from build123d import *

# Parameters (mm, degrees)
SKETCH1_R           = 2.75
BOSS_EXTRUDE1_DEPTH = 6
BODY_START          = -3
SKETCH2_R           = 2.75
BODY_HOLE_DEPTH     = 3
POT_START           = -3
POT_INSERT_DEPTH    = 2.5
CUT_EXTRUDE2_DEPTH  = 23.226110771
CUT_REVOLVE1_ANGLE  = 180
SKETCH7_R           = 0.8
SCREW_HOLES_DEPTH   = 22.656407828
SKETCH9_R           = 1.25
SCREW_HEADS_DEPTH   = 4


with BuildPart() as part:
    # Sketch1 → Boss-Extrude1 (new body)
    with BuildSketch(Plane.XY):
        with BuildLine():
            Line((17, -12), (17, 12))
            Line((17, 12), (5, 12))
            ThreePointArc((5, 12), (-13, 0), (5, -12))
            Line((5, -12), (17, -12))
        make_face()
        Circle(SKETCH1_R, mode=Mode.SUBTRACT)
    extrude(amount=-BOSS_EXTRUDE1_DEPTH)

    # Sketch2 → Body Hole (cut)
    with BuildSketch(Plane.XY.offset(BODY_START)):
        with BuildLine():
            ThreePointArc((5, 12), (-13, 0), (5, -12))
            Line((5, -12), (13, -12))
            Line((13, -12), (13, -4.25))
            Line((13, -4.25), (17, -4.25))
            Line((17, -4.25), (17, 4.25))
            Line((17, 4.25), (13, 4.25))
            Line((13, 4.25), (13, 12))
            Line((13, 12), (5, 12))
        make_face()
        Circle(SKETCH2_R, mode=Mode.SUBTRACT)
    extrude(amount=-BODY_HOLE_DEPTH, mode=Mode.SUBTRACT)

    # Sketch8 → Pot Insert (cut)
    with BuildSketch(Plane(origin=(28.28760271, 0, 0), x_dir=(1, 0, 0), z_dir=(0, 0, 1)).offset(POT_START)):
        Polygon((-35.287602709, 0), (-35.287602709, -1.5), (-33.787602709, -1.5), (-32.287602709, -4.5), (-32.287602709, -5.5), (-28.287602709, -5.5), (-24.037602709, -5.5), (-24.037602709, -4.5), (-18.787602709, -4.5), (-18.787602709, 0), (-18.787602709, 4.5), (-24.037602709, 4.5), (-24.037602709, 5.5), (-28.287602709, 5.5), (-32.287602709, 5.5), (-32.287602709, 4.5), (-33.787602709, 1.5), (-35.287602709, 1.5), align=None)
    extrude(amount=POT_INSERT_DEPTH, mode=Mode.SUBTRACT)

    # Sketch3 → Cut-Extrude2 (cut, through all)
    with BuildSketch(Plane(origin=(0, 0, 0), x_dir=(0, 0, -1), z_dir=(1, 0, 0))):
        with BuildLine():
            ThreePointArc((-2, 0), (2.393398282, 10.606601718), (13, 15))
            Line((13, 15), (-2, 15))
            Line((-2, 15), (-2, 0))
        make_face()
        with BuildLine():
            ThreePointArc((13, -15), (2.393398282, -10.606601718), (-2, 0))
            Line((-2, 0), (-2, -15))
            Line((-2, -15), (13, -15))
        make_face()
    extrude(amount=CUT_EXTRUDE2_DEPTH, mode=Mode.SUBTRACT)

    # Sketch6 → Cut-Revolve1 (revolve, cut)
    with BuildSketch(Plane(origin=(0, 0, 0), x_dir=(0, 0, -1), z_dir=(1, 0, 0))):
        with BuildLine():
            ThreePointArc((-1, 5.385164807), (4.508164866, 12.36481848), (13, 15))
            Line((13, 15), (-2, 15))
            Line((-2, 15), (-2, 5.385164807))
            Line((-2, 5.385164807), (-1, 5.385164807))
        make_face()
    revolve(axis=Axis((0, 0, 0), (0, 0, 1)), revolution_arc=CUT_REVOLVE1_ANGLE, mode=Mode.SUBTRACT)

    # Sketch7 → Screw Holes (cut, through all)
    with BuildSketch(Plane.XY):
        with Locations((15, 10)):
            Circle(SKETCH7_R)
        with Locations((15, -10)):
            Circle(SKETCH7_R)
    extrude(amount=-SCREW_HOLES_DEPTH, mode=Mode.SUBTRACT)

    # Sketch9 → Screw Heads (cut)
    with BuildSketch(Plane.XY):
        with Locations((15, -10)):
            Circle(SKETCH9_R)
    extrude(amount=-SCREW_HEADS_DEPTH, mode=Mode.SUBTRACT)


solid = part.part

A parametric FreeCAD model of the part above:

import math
import FreeCAD as App
import Part
import Sketcher
Q = App.Units.Quantity

doc = App.newDocument("Part")
params = doc.addObject("Spreadsheet::Sheet", "Params")
for row, (alias, value) in enumerate([
    ("sketch1_radius", "13 mm"),
    ("sketch1_diameter", "5.5 mm"),
    ("sketch1_width", "12 mm"),
    ("sketch1_height", "24 mm"),
    ("pad1_length", "6 mm"),
    ("sketch2_radius", "13 mm"),
    ("sketch2_diameter", "5.5 mm"),
    ("sketch2_width", "8 mm"),
    ("sketch2_width2", "4 mm"),
    ("sketch2_height", "8.5 mm"),
    ("pocket1_length", "3 mm"),
    ("sketch3_height", "1 mm"),
    ("sketch3_height2", "9 mm"),
    ("sketch3_height3", "3 mm"),
    ("sketch3_width", "1.5 mm"),
    ("sketch3_width2", "8.25 mm"),
    ("pocket2_length", "2.5 mm"),
    ("sketch4_radius", "15 mm"),
    ("sketch5_radius", "15 mm"),
    ("sketch5_height", "15 mm"),
    ("sketch5_height2", "1 mm"),
    ("groove_angle", "180 deg"),
    ("sketch6_diameter", "1.6 mm"),
    ("sketch7_diameter", "2.5 mm"),
    ("pocket5_length", "4 mm"),
], start=1):
    params.set(f"A{row}", alias)
    params.set(f"B{row}", "=" + value)
    params.setAlias(f"B{row}", alias)

body = doc.addObject("PartDesign::Body", "Body")

sketch1 = body.newObject("Sketcher::SketchObject", "Sketch")
sketch1.AttachmentSupport = (doc.getObject("XY_Plane"), [""])
sketch1.MapMode = "FlatFace"
sketch1.addGeometry([
    Part.LineSegment(App.Vector(17, -12, 0), App.Vector(17, 12, 0)),
    Part.LineSegment(App.Vector(17, 12, 0), App.Vector(5, 12, 0)),
    Part.ArcOfCircle(Part.Circle(App.Vector(0, 0, 0), App.Vector(0, 0, 1), 13), math.radians(67), math.radians(293)),
    Part.LineSegment(App.Vector(5, -12, 0), App.Vector(17, -12, 0)),
    Part.Circle(App.Vector(0, 0, 0), App.Vector(0, 0, 1), 2.8),
], False)
sketch1.addConstraint([
    Sketcher.Constraint("Coincident", 0, 2, 1, 1),
    Sketcher.Constraint("Coincident", 1, 2, 2, 1),
    Sketcher.Constraint("Coincident", 2, 2, 3, 1),
    Sketcher.Constraint("Coincident", 3, 2, 0, 1),
    Sketcher.Constraint("Vertical", 0),
    Sketcher.Constraint("Horizontal", 1),
    Sketcher.Constraint("Horizontal", 3),
    Sketcher.Constraint("Coincident", 2, 3, -1, 1),
    Sketcher.Constraint("Coincident", 4, 3, -1, 1),
    Sketcher.Constraint("Vertical", 1, 2, 2, 2),
    Sketcher.Constraint("Radius", 2, Q("13 mm")),
    Sketcher.Constraint("Diameter", 4, Q("5.5 mm")),
    Sketcher.Constraint("DistanceX", 1, 2, 1, 1, Q("12 mm")),
    Sketcher.Constraint("DistanceY", 0, 1, 0, 2, Q("24 mm")),
])
sketch1.setExpression("Constraints[10]", "Params.sketch1_radius")
sketch1.setExpression("Constraints[11]", "Params.sketch1_diameter")
sketch1.setExpression("Constraints[12]", "Params.sketch1_width")
sketch1.setExpression("Constraints[13]", "Params.sketch1_height")
pad1 = body.newObject("PartDesign::Pad", "Pad")
pad1.Profile = sketch1
pad1.setExpression("Length", "Params.pad1_length")
pad1.Reversed = True

sketch2 = body.newObject("Sketcher::SketchObject", "Sketch001")
sketch2.AttachmentSupport = (doc.getObject("XY_Plane"), [""])
sketch2.MapMode = "FlatFace"
sketch2.AttachmentOffset = App.Placement(App.Vector(0, 0, -3), App.Rotation())
sketch2.addGeometry([
    Part.ArcOfCircle(Part.Circle(App.Vector(0, 0, 0), App.Vector(0, 0, 1), 13), math.radians(67), math.radians(293)),
    Part.LineSegment(App.Vector(5, -12, 0), App.Vector(13, -12, 0)),
    Part.LineSegment(App.Vector(13, -12, 0), App.Vector(13, -4.2, 0)),
    Part.LineSegment(App.Vector(13, -4.2, 0), App.Vector(17, -4.2, 0)),
    Part.LineSegment(App.Vector(17, -4.2, 0), App.Vector(17, 4.2, 0)),
    Part.LineSegment(App.Vector(17, 4.2, 0), App.Vector(13, 4.2, 0)),
    Part.LineSegment(App.Vector(13, 4.2, 0), App.Vector(13, 12, 0)),
    Part.LineSegment(App.Vector(13, 12, 0), App.Vector(5, 12, 0)),
    Part.Circle(App.Vector(0, 0, 0), App.Vector(0, 0, 1), 2.8),
], False)
sketch2.addConstraint([
    Sketcher.Constraint("Coincident", 0, 2, 1, 1),
    Sketcher.Constraint("Coincident", 1, 2, 2, 1),
    Sketcher.Constraint("Coincident", 2, 2, 3, 1),
    Sketcher.Constraint("Coincident", 3, 2, 4, 1),
    Sketcher.Constraint("Coincident", 4, 2, 5, 1),
    Sketcher.Constraint("Coincident", 5, 2, 6, 1),
    Sketcher.Constraint("Coincident", 6, 2, 7, 1),
    Sketcher.Constraint("Coincident", 7, 2, 0, 1),
    Sketcher.Constraint("Horizontal", 1),
    Sketcher.Constraint("Vertical", 2),
    Sketcher.Constraint("Horizontal", 3),
    Sketcher.Constraint("Vertical", 4),
    Sketcher.Constraint("Horizontal", 5),
    Sketcher.Constraint("Vertical", 6),
    Sketcher.Constraint("Horizontal", 7),
    Sketcher.Constraint("Coincident", 0, 3, -1, 1),
    Sketcher.Constraint("Coincident", 8, 3, -1, 1),
    Sketcher.Constraint("Symmetric", 2, 2, 5, 2, -1),
    Sketcher.Constraint("Vertical", 0, 2, 7, 2),
    Sketcher.Constraint("Radius", 0, Q("13 mm")),
    Sketcher.Constraint("Diameter", 8, Q("5.5 mm")),
    Sketcher.Constraint("DistanceX", 1, 1, 1, 2, Q("8 mm")),
    Sketcher.Constraint("DistanceX", 3, 1, 3, 2, Q("4 mm")),
    Sketcher.Constraint("DistanceY", 4, 1, 4, 2, Q("8.5 mm")),
    Sketcher.Constraint("DistanceX", -1, 1, 0, 2, Q("5 mm")),
])
sketch2.setExpression("Constraints[19]", "Params.sketch2_radius")
sketch2.setExpression("Constraints[20]", "Params.sketch2_diameter")
sketch2.setExpression("Constraints[21]", "Params.sketch2_width")
sketch2.setExpression("Constraints[22]", "Params.sketch2_width2")
sketch2.setExpression("Constraints[23]", "Params.sketch2_height")
pocket1 = body.newObject("PartDesign::Pocket", "Pocket")
pocket1.Profile = sketch2
pocket1.setExpression("Length", "Params.pocket1_length")

sketch3 = body.newObject("Sketcher::SketchObject", "Sketch002")
sketch3.AttachmentSupport = (doc.getObject("XY_Plane"), [""])
sketch3.MapMode = "FlatFace"
sketch3.AttachmentOffset = App.Placement(App.Vector(0, 0, -3), App.Rotation())
sketch3.addGeometry([
    Part.LineSegment(App.Vector(-7, -1.5, 0), App.Vector(-5.5, -1.5, 0)),
    Part.LineSegment(App.Vector(-5.5, -1.5, 0), App.Vector(-4, -4.5, 0)),
    Part.LineSegment(App.Vector(-4, -4.5, 0), App.Vector(-4, -5.5, 0)),
    Part.LineSegment(App.Vector(-4, -5.5, 0), App.Vector(4.3, -5.5, 0)),
    Part.LineSegment(App.Vector(4.3, -5.5, 0), App.Vector(4.3, -4.5, 0)),
    Part.LineSegment(App.Vector(4.3, -4.5, 0), App.Vector(9.5, -4.5, 0)),
    Part.LineSegment(App.Vector(9.5, -4.5, 0), App.Vector(9.5, 4.5, 0)),
    Part.LineSegment(App.Vector(9.5, 4.5, 0), App.Vector(4.3, 4.5, 0)),
    Part.LineSegment(App.Vector(4.3, 4.5, 0), App.Vector(4.3, 5.5, 0)),
    Part.LineSegment(App.Vector(4.3, 5.5, 0), App.Vector(-4, 5.5, 0)),
    Part.LineSegment(App.Vector(-4, 5.5, 0), App.Vector(-4, 4.5, 0)),
    Part.LineSegment(App.Vector(-4, 4.5, 0), App.Vector(-5.5, 1.5, 0)),
    Part.LineSegment(App.Vector(-5.5, 1.5, 0), App.Vector(-7, 1.5, 0)),
    Part.LineSegment(App.Vector(-7, 1.5, 0), App.Vector(-7, -1.5, 0)),
], False)
sketch3.addConstraint([
    Sketcher.Constraint("Coincident", 0, 2, 1, 1),
    Sketcher.Constraint("Coincident", 1, 2, 2, 1),
    Sketcher.Constraint("Coincident", 2, 2, 3, 1),
    Sketcher.Constraint("Coincident", 3, 2, 4, 1),
    Sketcher.Constraint("Coincident", 4, 2, 5, 1),
    Sketcher.Constraint("Coincident", 5, 2, 6, 1),
    Sketcher.Constraint("Coincident", 6, 2, 7, 1),
    Sketcher.Constraint("Coincident", 7, 2, 8, 1),
    Sketcher.Constraint("Coincident", 8, 2, 9, 1),
    Sketcher.Constraint("Coincident", 9, 2, 10, 1),
    Sketcher.Constraint("Coincident", 10, 2, 11, 1),
    Sketcher.Constraint("Coincident", 11, 2, 12, 1),
    Sketcher.Constraint("Coincident", 12, 2, 13, 1),
    Sketcher.Constraint("Coincident", 13, 2, 0, 1),
    Sketcher.Constraint("Horizontal", 0),
    Sketcher.Constraint("Vertical", 2),
    Sketcher.Constraint("Horizontal", 3),
    Sketcher.Constraint("Vertical", 4),
    Sketcher.Constraint("Horizontal", 5),
    Sketcher.Constraint("Vertical", 6),
    Sketcher.Constraint("Horizontal", 7),
    Sketcher.Constraint("Vertical", 8),
    Sketcher.Constraint("Horizontal", 9),
    Sketcher.Constraint("Vertical", 10),
    Sketcher.Constraint("Horizontal", 12),
    Sketcher.Constraint("Vertical", 13),
    Sketcher.Constraint("Symmetric", 4, 2, 7, 2, -1),
    Sketcher.Constraint("Symmetric", 2, 2, 9, 2, -1),
    Sketcher.Constraint("Symmetric", 0, 2, 11, 2, -1),
    Sketcher.Constraint("Horizontal", 1, 2, 4, 2),
    Sketcher.Constraint("Horizontal", 7, 2, 10, 2),
    Sketcher.Constraint("DistanceY", 2, 2, 2, 1, Q("1 mm")),
    Sketcher.Constraint("DistanceY", 6, 1, 6, 2, Q("9 mm")),
    Sketcher.Constraint("DistanceY", 13, 2, 13, 1, Q("3 mm")),
    Sketcher.Constraint("DistanceX", 0, 1, 0, 2, Q("1.5 mm")),
    Sketcher.Constraint("DistanceX", 1, 2, -1, 1, Q("4 mm")),
    Sketcher.Constraint("DistanceX", 12, 2, -1, 1, Q("7 mm")),
    Sketcher.Constraint("DistanceX", 0, 2, 5, 2, Q("15 mm")),
    Sketcher.Constraint("DistanceX", 3, 1, 3, 2, Q("8.25 mm")),
])
sketch3.setExpression("Constraints[31]", "Params.sketch3_height")
sketch3.setExpression("Constraints[32]", "Params.sketch3_height2")
sketch3.setExpression("Constraints[33]", "Params.sketch3_height3")
sketch3.setExpression("Constraints[34]", "Params.sketch3_width")
sketch3.setExpression("Constraints[38]", "Params.sketch3_width2")
pocket2 = body.newObject("PartDesign::Pocket", "Pocket001")
pocket2.Profile = sketch3
pocket2.setExpression("Length", "Params.pocket2_length")
pocket2.Reversed = True

sketch4 = body.newObject("Sketcher::SketchObject", "Sketch003")
sketch4.AttachmentSupport = (doc.getObject("YZ_Plane"), [""])
sketch4.MapMode = "FlatFace"
sketch4.addGeometry([
    Part.ArcOfCircle(Part.Circle(App.Vector(0, -13, 0), App.Vector(0, 0, 1), 15), math.radians(0), math.radians(90)),
    Part.LineSegment(App.Vector(15, -13, 0), App.Vector(15, 2, 0)),
    Part.LineSegment(App.Vector(15, 2, 0), App.Vector(0, 2, 0)),
    Part.ArcOfCircle(Part.Circle(App.Vector(0, -13, 0), App.Vector(0, 0, 1), 15), math.radians(90), math.radians(180)),
    Part.LineSegment(App.Vector(0, 2, 0), App.Vector(-15, 2, 0)),
    Part.LineSegment(App.Vector(-15, 2, 0), App.Vector(-15, -13, 0)),
], False)
sketch4.addConstraint([
    Sketcher.Constraint("Tangent", 0, 1, 1, 1),
    Sketcher.Constraint("Coincident", 1, 2, 2, 1),
    Sketcher.Constraint("Tangent", 2, 2, 0, 2),
    Sketcher.Constraint("Tangent", 3, 1, 4, 1),
    Sketcher.Constraint("Coincident", 4, 2, 5, 1),
    Sketcher.Constraint("Tangent", 5, 2, 3, 2),
    Sketcher.Constraint("Vertical", 1),
    Sketcher.Constraint("Horizontal", 2),
    Sketcher.Constraint("Horizontal", 4),
    Sketcher.Constraint("Vertical", 5),
    Sketcher.Constraint("Coincident", 3, 3, 0, 3),
    Sketcher.Constraint("Equal", 0, 3),
    Sketcher.Constraint("PointOnObject", 0, 3, -2),
    Sketcher.Constraint("Radius", 0, Q("15 mm")),
    Sketcher.Constraint("DistanceY", 0, 3, -1, 1, Q("13 mm")),
])
sketch4.setExpression("Constraints[13]", "Params.sketch4_radius")
pocket3 = body.newObject("PartDesign::Pocket", "Pocket002")
pocket3.Profile = sketch4
pocket3.Type = "ThroughAll"
pocket3.Reversed = True

sketch5 = body.newObject("Sketcher::SketchObject", "Sketch004")
sketch5.AttachmentSupport = (doc.getObject("YZ_Plane"), [""])
sketch5.MapMode = "FlatFace"
sketch5.addGeometry([
    Part.ArcOfCircle(Part.Circle(App.Vector(0, -13, 0), App.Vector(0, 0, 1), 15), math.radians(0), math.radians(69)),
    Part.LineSegment(App.Vector(15, -13, 0), App.Vector(15, 2, 0)),
    Part.LineSegment(App.Vector(15, 2, 0), App.Vector(5.4, 2, 0)),
    Part.LineSegment(App.Vector(5.4, 2, 0), App.Vector(5.4, 1, 0)),
], False)
sketch5.addConstraint([
    Sketcher.Constraint("Tangent", 0, 1, 1, 1),
    Sketcher.Constraint("Coincident", 1, 2, 2, 1),
    Sketcher.Constraint("Coincident", 2, 2, 3, 1),
    Sketcher.Constraint("Coincident", 3, 2, 0, 2),
    Sketcher.Constraint("Vertical", 1),
    Sketcher.Constraint("Horizontal", 2),
    Sketcher.Constraint("Vertical", 3),
    Sketcher.Constraint("PointOnObject", 0, 3, -2),
    Sketcher.Constraint("Radius", 0, Q("15 mm")),
    Sketcher.Constraint("DistanceY", 1, 1, 1, 2, Q("15 mm")),
    Sketcher.Constraint("DistanceY", 3, 2, 3, 1, Q("1 mm")),
    Sketcher.Constraint("DistanceY", 0, 3, -1, 1, Q("13 mm")),
])
sketch5.setExpression("Constraints[8]", "Params.sketch5_radius")
sketch5.setExpression("Constraints[9]", "Params.sketch5_height")
sketch5.setExpression("Constraints[10]", "Params.sketch5_height2")
groove = body.newObject("PartDesign::Groove", "Groove")
groove.Profile = sketch5
groove.ReferenceAxis = (sketch5, ["V_Axis"])
groove.setExpression("Angle", "Params.groove_angle")

sketch6 = body.newObject("Sketcher::SketchObject", "Sketch005")
sketch6.AttachmentSupport = (doc.getObject("XY_Plane"), [""])
sketch6.MapMode = "FlatFace"
sketch6.addGeometry([
    Part.Circle(App.Vector(15, 10, 0), App.Vector(0, 0, 1), 0.8),
    Part.Circle(App.Vector(15, -10, 0), App.Vector(0, 0, 1), 0.8),
], False)
sketch6.addConstraint([
    Sketcher.Constraint("Equal", 0, 1),
    Sketcher.Constraint("Symmetric", 0, 3, 1, 3, -1),
    Sketcher.Constraint("Diameter", 0, Q("1.6 mm")),
    Sketcher.Constraint("DistanceX", -1, 1, 0, 3, Q("15 mm")),
    Sketcher.Constraint("DistanceY", -1, 1, 0, 3, Q("10 mm")),
])
sketch6.setExpression("Constraints[2]", "Params.sketch6_diameter")
pocket4 = body.newObject("PartDesign::Pocket", "Pocket003")
pocket4.Profile = sketch6
pocket4.Type = "ThroughAll"

sketch7 = body.newObject("Sketcher::SketchObject", "Sketch006")
sketch7.AttachmentSupport = (doc.getObject("XY_Plane"), [""])
sketch7.MapMode = "FlatFace"
sketch7.addGeometry(Part.Circle(App.Vector(15, -10, 0), App.Vector(0, 0, 1), 1.2), False)
sketch7.addConstraint([
    Sketcher.Constraint("Diameter", 0, Q("2.5 mm")),
    Sketcher.Constraint("DistanceX", -1, 1, 0, 3, Q("15 mm")),
    Sketcher.Constraint("DistanceY", 0, 3, -1, 1, Q("10 mm")),
])
sketch7.setExpression("Constraints[0]", "Params.sketch7_diameter")
pocket5 = body.newObject("PartDesign::Pocket", "Pocket004")
pocket5.Profile = sketch7
pocket5.setExpression("Length", "Params.pocket5_length")

doc.recompute()
